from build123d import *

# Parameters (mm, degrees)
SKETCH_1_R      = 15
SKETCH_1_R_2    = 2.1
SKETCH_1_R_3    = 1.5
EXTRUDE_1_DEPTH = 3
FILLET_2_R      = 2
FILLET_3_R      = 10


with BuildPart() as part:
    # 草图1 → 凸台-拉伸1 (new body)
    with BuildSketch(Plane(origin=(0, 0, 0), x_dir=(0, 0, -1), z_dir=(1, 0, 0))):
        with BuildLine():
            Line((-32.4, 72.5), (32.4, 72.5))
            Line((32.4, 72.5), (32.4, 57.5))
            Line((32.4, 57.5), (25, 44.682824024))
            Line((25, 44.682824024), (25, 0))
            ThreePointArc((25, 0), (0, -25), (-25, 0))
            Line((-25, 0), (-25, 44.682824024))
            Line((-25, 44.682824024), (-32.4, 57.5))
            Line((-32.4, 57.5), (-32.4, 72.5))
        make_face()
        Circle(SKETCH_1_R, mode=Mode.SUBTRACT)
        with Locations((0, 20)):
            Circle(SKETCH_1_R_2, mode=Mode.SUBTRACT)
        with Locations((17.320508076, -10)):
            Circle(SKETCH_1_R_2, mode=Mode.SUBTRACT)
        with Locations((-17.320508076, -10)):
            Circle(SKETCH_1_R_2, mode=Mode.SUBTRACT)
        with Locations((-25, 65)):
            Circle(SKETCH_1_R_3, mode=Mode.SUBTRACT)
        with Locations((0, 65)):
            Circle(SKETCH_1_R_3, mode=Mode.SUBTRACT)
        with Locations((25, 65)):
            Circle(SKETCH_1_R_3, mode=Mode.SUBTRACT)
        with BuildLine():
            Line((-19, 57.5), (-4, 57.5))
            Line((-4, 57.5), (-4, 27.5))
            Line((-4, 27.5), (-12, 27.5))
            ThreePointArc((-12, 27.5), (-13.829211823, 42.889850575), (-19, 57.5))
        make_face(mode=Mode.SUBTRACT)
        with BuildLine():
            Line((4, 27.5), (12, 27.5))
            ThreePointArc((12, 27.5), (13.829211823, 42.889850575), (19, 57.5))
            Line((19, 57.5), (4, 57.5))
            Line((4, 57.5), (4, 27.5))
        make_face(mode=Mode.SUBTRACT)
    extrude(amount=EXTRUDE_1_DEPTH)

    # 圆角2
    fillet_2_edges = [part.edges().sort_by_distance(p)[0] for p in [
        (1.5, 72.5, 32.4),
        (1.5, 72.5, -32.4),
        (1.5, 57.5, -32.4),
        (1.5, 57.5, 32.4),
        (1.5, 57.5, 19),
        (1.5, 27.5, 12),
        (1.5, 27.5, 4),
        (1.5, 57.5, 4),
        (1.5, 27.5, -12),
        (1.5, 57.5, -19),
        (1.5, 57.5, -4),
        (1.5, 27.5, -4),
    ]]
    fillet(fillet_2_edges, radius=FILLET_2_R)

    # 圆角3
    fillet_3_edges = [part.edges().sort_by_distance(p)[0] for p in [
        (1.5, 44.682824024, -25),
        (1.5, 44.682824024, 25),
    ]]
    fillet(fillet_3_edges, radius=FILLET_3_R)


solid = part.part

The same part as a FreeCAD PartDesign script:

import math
import FreeCAD as App
import Part
import Sketcher
from FreeCAD import Vector
Q = App.Units.Quantity


def edges_at(feature, points):
    """Names of the edges that pass closest to the given points."""
    edges = feature.Shape.Edges
    near = lambda p: min(range(len(edges)), key=lambda i: edges[i].distToShape(Part.Vertex(*p))[0])
    return sorted({f"Edge{near(p) + 1}" for p in points})

doc = App.newDocument("Part")
body = doc.addObject("PartDesign::Body", "Body")

sketch1 = body.newObject("Sketcher::SketchObject", "Sketch")
sketch1.AttachmentSupport = (doc.getObject("YZ_Plane"), [""])
sketch1.MapMode = "FlatFace"
sketch1.addGeometry([
    Part.LineSegment(Vector(72.5, -32.4, 0), Vector(72.5, 32.4, 0)),
    Part.LineSegment(Vector(72.5, 32.4, 0), Vector(57.5, 32.4, 0)),
    Part.LineSegment(Vector(57.5, 32.4, 0), Vector(44.7, 25, 0)),
    Part.LineSegment(Vector(44.7, 25, 0), Vector(0, 25, 0)),
    Part.ArcOfCircle(Part.Circle(Vector(0, 0, 0), Vector(0, 0, 1), 25), math.radians(90), math.radians(270)),
    Part.LineSegment(Vector(0, -25, 0), Vector(44.7, -25, 0)),
    Part.LineSegment(Vector(44.7, -25, 0), Vector(57.5, -32.4, 0)),
    Part.LineSegment(Vector(57.5, -32.4, 0), Vector(72.5, -32.4, 0)),
    Part.Circle(Vector(-10, -17.3, 0), Vector(0, 0, 1), 2.1),
    Part.Circle(Vector(0, 0, 0), Vector(0, 0, 1), 15),
    Part.Circle(Vector(-10, 17.3, 0), Vector(0, 0, 1), 2.1),
    Part.Circle(Vector(20, 0, 0), Vector(0, 0, 1), 2.1),
    Part.LineSegment(Vector(27.5, -4, 0), Vector(57.5, -4, 0)),
    Part.LineSegment(Vector(57.5, -4, 0), Vector(57.5, -19, 0)),
    Part.ArcOfCircle(Part.Circle(Vector(27, -82, 0), Vector(0, 0, 1), 70), math.radians(64), math.radians(90)),
    Part.LineSegment(Vector(27.5, -12, 0), Vector(27.5, -4, 0)),
    Part.Circle(Vector(65, -25, 0), Vector(0, 0, 1), 1.5),
    Part.LineSegment(Vector(57.5, 19, 0), Vector(57.5, 4, 0)),
    Part.LineSegment(Vector(57.5, 4, 0), Vector(27.5, 4, 0)),
    Part.LineSegment(Vector(27.5, 4, 0), Vector(27.5, 12, 0)),
    Part.ArcOfCircle(Part.Circle(Vector(27, 82, 0), Vector(0, 0, 1), 70), math.radians(-90), math.radians(-64)),
    Part.Circle(Vector(65, 0, 0), Vector(0, 0, 1), 1.5),
    Part.Circle(Vector(65, 25, 0), Vector(0, 0, 1), 1.5),
], False)
sketch1.addConstraint([
    Sketcher.Constraint("Coincident", 0, 2, 1, 1),
    Sketcher.Constraint("Coincident", 1, 2, 2, 1),
    Sketcher.Constraint("Coincident", 2, 2, 3, 1),
    Sketcher.Constraint("Tangent", 3, 2, 4, 1),
    Sketcher.Constraint("Tangent", 4, 2, 5, 1),
    Sketcher.Constraint("Coincident", 5, 2, 6, 1),
    Sketcher.Constraint("Coincident", 6, 2, 7, 1),
    Sketcher.Constraint("Coincident", 7, 2, 0, 1),
    Sketcher.Constraint("Coincident", 12, 2, 13, 1),
    Sketcher.Constraint("Coincident", 13, 2, 14, 1),
    Sketcher.Constraint("Coincident", 14, 2, 15, 1),
    Sketcher.Constraint("Coincident", 15, 2, 12, 1),
    Sketcher.Constraint("Coincident", 17, 2, 18, 1),
    Sketcher.Constraint("Coincident", 18, 2, 19, 1),
    Sketcher.Constraint("Coincident", 19, 2, 20, 1),
    Sketcher.Constraint("Coincident", 20, 2, 17, 1),
    Sketcher.Constraint("Vertical", 0),
    Sketcher.Constraint("Horizontal", 1),
    Sketcher.Constraint("Horizontal", 3),
    Sketcher.Constraint("Horizontal", 5),
    Sketcher.Constraint("Horizontal", 7),
    Sketcher.Constraint("Horizontal", 12),
    Sketcher.Constraint("Vertical", 13),
    Sketcher.Constraint("Vertical", 15),
    Sketcher.Constraint("Vertical", 17),
    Sketcher.Constraint("Horizontal", 18),
    Sketcher.Constraint("Vertical", 19),
    Sketcher.Constraint("Coincident", 4, 3, -1, 1),
    Sketcher.Constraint("Coincident", 9, 3, -1, 1),
    Sketcher.Constraint("Equal", 8, 10),
    Sketcher.Constraint("Equal", 10, 11),
    Sketcher.Constraint("Equal", 14, 20),
    Sketcher.Constraint("Equal", 16, 21),
    Sketcher.Constraint("Equal", 21, 22),
    Sketcher.Constraint("Symmetric", 8, 3, 10, 3, -1),
    Sketcher.Constraint("Symmetric", 14, 3, 20, 3, -1),
    Sketcher.Constraint("Symmetric", 16, 3, 22, 3, -1),
    Sketcher.Constraint("Symmetric", 1, 2, 6, 2, -1),
    Sketcher.Constraint("Symmetric", 12, 2, 17, 2, -1),
    Sketcher.Constraint("PointOnObject", 11, 3, -1),
    Sketcher.Constraint("PointOnObject", 21, 3, -1),
    Sketcher.Constraint("Horizontal", 22, 3, 2, 2),
    Sketcher.Constraint("Vertical", 16, 3, 21, 3),
    Sketcher.Constraint("Vertical", 2, 2, 5, 2),
    Sketcher.Constraint("Vertical", 6, 2, 12, 2),
    Sketcher.Constraint("Vertical", 15, 2, 18, 2),
    Sketcher.Constraint("Equal", 7, 13),
    Sketcher.Constraint("Diameter", 9, Q("30 mm")),
    Sketcher.Constraint("Diameter", 16, Q("3 mm")),
    Sketcher.Constraint("Radius", 4, Q("25 mm")),
    Sketcher.Constraint("Radius", 14, Q("70 mm")),
    Sketcher.Constraint("Diameter", 8, Q("4.2 mm")),
    Sketcher.Constraint("DistanceX", 1, 2, 1, 1, Q("15 mm")),
    Sketcher.Constraint("DistanceX", 12, 1, 12, 2, Q("30 mm")),
    Sketcher.Constraint("DistanceY", 15, 1, 15, 2, Q("8 mm")),
    Sketcher.Constraint("Angle", 2, Q("-150 deg")),
    Sketcher.Constraint("DistanceY", 0, 1, 0, 2, Q("64.8 mm")),
    Sketcher.Constraint("DistanceX", 8, 3, -1, 1, Q("10 mm")),
    Sketcher.Constraint("DistanceX", -1, 1, 11, 3, Q("20 mm")),
    Sketcher.Constraint("DistanceX", -1, 1, 16, 3, Q("65 mm")),
    Sketcher.Constraint("DistanceY", 12, 2, -1, 1, Q("4 mm")),
    Sketcher.Constraint("DistanceX", -1, 1, 0, 2, Q("72.5 mm")),
    Sketcher.Constraint("DistanceY", 8, 3, -1, 1, Q("17.320508 mm")),
])
pad1 = body.newObject("PartDesign::Pad", "Pad")
pad1.Profile = sketch1
pad1.Length = 3
doc.recompute()

fillet = body.newObject("PartDesign::Fillet", "Fillet")
fillet.Base = (pad1, edges_at(pad1, [
    (1.5, 72.5, 32.4),
    (1.5, 72.5, -32.4),
    (1.5, 57.5, -32.4),
    (1.5, 57.5, 32.4),
    (1.5, 57.5, 19),
    (1.5, 27.5, 12),
    (1.5, 27.5, 4),
    (1.5, 57.5, 4),
    (1.5, 27.5, -12),
    (1.5, 57.5, -19),
    (1.5, 57.5, -4),
    (1.5, 27.5, -4),
]))
fillet.Radius = 2
doc.recompute()

fillet2 = body.newObject("PartDesign::Fillet", "Fillet001")
fillet2.Base = (fillet, edges_at(fillet, [(1.5, 44.683, -25), (1.5, 44.683, 25)]))
fillet2.Radius = 10

doc.recompute()
